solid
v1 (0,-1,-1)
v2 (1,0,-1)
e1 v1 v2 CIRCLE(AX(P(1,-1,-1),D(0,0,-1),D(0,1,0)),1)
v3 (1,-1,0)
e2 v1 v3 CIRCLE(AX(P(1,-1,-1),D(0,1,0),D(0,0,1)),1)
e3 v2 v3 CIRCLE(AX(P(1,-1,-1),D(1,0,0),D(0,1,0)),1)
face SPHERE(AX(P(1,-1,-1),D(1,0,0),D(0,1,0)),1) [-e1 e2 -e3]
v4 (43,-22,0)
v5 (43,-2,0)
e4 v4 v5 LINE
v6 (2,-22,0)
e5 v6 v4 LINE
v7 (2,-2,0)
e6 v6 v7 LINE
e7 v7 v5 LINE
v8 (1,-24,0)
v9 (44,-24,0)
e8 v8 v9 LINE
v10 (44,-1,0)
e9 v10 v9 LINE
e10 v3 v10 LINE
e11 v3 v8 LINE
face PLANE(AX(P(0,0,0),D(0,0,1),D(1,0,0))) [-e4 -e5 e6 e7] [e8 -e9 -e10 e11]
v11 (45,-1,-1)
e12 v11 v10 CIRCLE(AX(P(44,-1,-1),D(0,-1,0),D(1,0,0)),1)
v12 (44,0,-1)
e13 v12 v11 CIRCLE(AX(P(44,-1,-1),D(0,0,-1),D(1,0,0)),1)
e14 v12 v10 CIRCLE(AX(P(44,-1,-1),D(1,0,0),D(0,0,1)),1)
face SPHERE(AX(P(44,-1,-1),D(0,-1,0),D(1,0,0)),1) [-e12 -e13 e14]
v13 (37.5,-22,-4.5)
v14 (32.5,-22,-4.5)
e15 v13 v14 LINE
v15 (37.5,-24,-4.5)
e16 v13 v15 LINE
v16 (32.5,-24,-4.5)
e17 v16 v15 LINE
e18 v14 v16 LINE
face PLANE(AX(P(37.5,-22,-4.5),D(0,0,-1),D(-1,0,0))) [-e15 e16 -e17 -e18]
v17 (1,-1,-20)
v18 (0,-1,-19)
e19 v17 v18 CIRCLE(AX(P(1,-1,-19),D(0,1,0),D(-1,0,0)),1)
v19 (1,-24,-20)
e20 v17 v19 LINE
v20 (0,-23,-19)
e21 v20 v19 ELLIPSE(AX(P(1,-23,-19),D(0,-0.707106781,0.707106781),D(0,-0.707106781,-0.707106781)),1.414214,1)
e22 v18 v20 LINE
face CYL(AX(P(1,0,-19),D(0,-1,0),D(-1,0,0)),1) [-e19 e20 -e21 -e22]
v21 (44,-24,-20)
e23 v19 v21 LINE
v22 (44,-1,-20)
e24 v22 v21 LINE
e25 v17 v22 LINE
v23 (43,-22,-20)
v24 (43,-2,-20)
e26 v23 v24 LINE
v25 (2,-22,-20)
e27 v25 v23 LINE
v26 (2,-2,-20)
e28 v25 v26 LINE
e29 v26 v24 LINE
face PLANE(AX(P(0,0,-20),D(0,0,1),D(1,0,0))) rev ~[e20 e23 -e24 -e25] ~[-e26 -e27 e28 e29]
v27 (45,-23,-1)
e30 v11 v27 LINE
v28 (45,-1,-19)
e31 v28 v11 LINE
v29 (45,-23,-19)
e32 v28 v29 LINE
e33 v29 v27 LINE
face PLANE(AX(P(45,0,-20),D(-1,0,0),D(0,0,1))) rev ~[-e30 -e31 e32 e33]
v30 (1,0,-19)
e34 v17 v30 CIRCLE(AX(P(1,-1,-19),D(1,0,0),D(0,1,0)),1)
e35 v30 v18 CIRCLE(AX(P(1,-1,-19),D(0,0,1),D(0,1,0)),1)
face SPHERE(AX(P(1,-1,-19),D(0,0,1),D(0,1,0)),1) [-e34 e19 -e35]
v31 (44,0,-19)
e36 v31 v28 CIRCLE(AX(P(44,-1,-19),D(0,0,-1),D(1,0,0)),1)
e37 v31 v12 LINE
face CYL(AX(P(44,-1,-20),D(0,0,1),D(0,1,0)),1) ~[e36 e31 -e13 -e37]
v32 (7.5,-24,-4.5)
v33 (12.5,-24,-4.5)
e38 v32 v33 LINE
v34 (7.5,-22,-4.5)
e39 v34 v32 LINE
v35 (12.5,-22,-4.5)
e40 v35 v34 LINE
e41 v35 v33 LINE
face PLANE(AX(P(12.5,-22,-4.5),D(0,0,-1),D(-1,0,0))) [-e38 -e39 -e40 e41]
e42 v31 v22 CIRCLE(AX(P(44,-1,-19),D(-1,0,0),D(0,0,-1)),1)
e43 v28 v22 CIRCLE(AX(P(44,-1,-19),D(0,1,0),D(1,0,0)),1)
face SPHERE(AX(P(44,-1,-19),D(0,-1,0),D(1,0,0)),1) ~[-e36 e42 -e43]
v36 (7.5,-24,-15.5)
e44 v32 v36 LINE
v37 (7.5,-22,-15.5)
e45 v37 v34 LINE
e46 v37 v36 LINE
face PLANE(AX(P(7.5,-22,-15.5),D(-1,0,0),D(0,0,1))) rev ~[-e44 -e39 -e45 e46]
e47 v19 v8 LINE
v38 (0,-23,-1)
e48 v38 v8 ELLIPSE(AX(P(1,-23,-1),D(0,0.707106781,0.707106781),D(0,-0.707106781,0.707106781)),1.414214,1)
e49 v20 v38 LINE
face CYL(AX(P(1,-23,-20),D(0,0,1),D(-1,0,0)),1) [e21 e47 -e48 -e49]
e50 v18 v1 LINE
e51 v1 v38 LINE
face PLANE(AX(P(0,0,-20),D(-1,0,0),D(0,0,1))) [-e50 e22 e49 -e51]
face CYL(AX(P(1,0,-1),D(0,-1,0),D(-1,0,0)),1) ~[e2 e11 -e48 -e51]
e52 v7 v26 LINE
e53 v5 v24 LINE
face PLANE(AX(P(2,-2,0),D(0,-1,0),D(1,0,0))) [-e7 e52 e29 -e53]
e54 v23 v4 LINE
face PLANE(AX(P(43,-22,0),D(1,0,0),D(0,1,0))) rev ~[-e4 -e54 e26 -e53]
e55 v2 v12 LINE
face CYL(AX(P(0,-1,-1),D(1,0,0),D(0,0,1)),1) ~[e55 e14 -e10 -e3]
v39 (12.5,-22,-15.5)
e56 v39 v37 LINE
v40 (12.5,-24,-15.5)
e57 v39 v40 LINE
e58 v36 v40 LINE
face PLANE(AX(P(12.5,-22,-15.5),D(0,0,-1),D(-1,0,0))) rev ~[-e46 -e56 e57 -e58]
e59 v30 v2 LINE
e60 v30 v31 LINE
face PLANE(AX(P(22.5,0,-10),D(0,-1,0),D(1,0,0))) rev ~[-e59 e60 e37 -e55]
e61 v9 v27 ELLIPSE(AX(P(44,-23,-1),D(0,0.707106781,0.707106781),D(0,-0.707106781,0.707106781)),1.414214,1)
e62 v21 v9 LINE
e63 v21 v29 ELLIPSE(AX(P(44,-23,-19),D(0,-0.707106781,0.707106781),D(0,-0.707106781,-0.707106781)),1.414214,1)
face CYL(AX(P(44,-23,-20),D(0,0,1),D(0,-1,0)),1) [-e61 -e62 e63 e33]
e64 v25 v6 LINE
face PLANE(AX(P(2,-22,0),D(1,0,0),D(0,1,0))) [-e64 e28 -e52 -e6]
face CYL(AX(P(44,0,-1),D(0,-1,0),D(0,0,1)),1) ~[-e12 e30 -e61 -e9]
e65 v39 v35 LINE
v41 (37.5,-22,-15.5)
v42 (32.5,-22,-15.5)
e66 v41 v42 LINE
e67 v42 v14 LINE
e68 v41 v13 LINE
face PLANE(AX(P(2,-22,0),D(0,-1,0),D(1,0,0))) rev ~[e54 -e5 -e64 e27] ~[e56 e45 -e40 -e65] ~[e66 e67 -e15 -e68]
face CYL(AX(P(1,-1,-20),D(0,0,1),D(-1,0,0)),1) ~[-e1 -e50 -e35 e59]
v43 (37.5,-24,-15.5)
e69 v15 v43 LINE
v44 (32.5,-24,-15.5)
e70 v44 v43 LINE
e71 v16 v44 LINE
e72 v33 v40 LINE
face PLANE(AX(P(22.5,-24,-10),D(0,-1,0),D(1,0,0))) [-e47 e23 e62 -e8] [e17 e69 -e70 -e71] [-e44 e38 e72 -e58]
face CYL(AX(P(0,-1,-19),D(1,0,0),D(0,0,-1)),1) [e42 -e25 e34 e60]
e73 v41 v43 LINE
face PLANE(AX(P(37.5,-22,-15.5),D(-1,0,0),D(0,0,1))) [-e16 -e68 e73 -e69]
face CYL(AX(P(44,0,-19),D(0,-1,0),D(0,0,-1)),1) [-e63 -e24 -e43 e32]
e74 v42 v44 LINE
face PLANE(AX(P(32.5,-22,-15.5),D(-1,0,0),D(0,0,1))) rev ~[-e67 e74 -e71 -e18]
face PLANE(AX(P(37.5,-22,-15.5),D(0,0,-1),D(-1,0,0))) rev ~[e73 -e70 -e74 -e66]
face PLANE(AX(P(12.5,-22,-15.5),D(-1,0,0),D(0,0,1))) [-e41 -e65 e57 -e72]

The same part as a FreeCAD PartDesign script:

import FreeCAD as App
import Part
import Sketcher
from FreeCAD import Vector


def edges_at(feature, points):
    """Names of the edges that pass closest to the given points."""
    edges = feature.Shape.Edges
    near = lambda p: min(range(len(edges)), key=lambda i: edges[i].distToShape(Part.Vertex(*p))[0])
    return sorted({f"Edge{near(p) + 1}" for p in points})

doc = App.newDocument("Part")
params = doc.addObject("Spreadsheet::Sheet", "Params")
for row, (alias, value) in enumerate([
    ("sketch1_width", "45 mm"),
    ("sketch1_height", "20 mm"),
    ("pad1_length", "24 mm"),
    ("sketch2_width", "41 mm"),
    ("sketch2_height", "20 mm"),
    ("pocket1_length", "40 mm"),
    ("sketch3_width", "5 mm"),
    ("sketch3_height", "11 mm"),
    ("pocket2_length", "5 mm"),
    ("fillet_radius", "1 mm"),
], start=1):
    params.set(f"A{row}", alias)
    params.set(f"B{row}", "=" + value)
    params.setAlias(f"B{row}", alias)

body = doc.addObject("PartDesign::Body", "Body")

# Sketch on XZ plane
sketch1 = body.newObject("Sketcher::SketchObject", "Sketch")
sketch1.AttachmentSupport = (doc.getObject("XZ_Plane"), [""])
sketch1.MapMode = "FlatFace"
sketch1.addGeometry([
    Part.LineSegment(Vector(0, 0, 0), Vector(0, -20, 0)),
    Part.LineSegment(Vector(0, -20, 0), Vector(45, -20, 0)),
    Part.LineSegment(Vector(45, -20, 0), Vector(45, 0, 0)),
    Part.LineSegment(Vector(45, 0, 0), Vector(0, 0, 0)),
], False)
sketch1.addConstraint([
    Sketcher.Constraint("Coincident", 0, 2, 1, 1),
    Sketcher.Constraint("Coincident", 1, 2, 2, 1),
    Sketcher.Constraint("Coincident", 2, 2, 3, 1),
    Sketcher.Constraint("Coincident", 3, 2, 0, 1),
    Sketcher.Constraint("Vertical", 0),
    Sketcher.Constraint("Horizontal", 1),
    Sketcher.Constraint("Vertical", 2),
    Sketcher.Constraint("Horizontal", 3),
    Sketcher.Constraint("Coincident", 3, 2, -1, 1),
    Sketcher.Constraint("DistanceX", 1, 1, 1, 2, 45.0),
    Sketcher.Constraint("DistanceY", 0, 2, 0, 1, 20.0),
])
sketch1.setExpression("Constraints[9]", "Params.sketch1_width")
sketch1.setExpression("Constraints[10]", "Params.sketch1_height")
pad1 = body.newObject("PartDesign::Pad", "Pad")
pad1.Profile = sketch1
pad1.setExpression("Length", "Params.pad1_length")

# Sketch on XY plane
sketch2 = body.newObject("Sketcher::SketchObject", "Sketch001")
sketch2.AttachmentSupport = (doc.getObject("XY_Plane"), [""])
sketch2.MapMode = "FlatFace"
sketch2.addGeometry([
    Part.LineSegment(Vector(2, -2, 0), Vector(2, -22, 0)),
    Part.LineSegment(Vector(2, -22, 0), Vector(43, -22, 0)),
    Part.LineSegment(Vector(43, -22, 0), Vector(43, -2, 0)),
    Part.LineSegment(Vector(43, -2, 0), Vector(2, -2, 0)),
], False)
sketch2.addConstraint([
    Sketcher.Constraint("Coincident", 0, 2, 1, 1),
    Sketcher.Constraint("Coincident", 1, 2, 2, 1),
    Sketcher.Constraint("Coincident", 2, 2, 3, 1),
    Sketcher.Constraint("Coincident", 3, 2, 0, 1),
    Sketcher.Constraint("Vertical", 0),
    Sketcher.Constraint("Horizontal", 1),
    Sketcher.Constraint("Vertical", 2),
    Sketcher.Constraint("Horizontal", 3),
    Sketcher.Constraint("DistanceX", 1, 1, 1, 2, 41.0),
    Sketcher.Constraint("DistanceY", 0, 2, 0, 1, 20.0),
    Sketcher.Constraint("DistanceX", -1, 1, 0, 2, 2.0),
    Sketcher.Constraint("DistanceY", 0, 2, -1, 1, 22.0),
])
sketch2.setExpression("Constraints[8]", "Params.sketch2_width")
sketch2.setExpression("Constraints[9]", "Params.sketch2_height")
pocket1 = body.newObject("PartDesign::Pocket", "Pocket")
pocket1.Profile = sketch2
pocket1.setExpression("Length", "Params.pocket1_length")
pocket1.Midplane = True

# Sketch on XZ plane
sketch3 = body.newObject("Sketcher::SketchObject", "Sketch002")
sketch3.AttachmentSupport = (doc.getObject("XZ_Plane"), [""])
sketch3.MapMode = "FlatFace"
sketch3.AttachmentOffset = App.Placement(Vector(0, 0, 22), App.Rotation())
sketch3.addGeometry([
    Part.LineSegment(Vector(12.5, -4.5, 0), Vector(12.5, -15.5, 0)),  # 0
    Part.LineSegment(Vector(12.5, -15.5, 0), Vector(7.5, -15.5, 0)),  # 1
    Part.LineSegment(Vector(7.5, -15.5, 0), Vector(7.5, -4.5, 0)),  # 2
    Part.LineSegment(Vector(7.5, -4.5, 0), Vector(12.5, -4.5, 0)),  # 3
    Part.LineSegment(Vector(37.5, -4.5, 0), Vector(37.5, -15.5, 0)),  # 4
    Part.LineSegment(Vector(37.5, -15.5, 0), Vector(32.5, -15.5, 0)),  # 5
    Part.LineSegment(Vector(32.5, -15.5, 0), Vector(32.5, -4.5, 0)),  # 6
    Part.LineSegment(Vector(32.5, -4.5, 0), Vector(37.5, -4.5, 0)),  # 7
], False)
sketch3.addConstraint([
    Sketcher.Constraint("Coincident", 0, 2, 1, 1),
    Sketcher.Constraint("Coincident", 1, 2, 2, 1),
    Sketcher.Constraint("Coincident", 2, 2, 3, 1),
    Sketcher.Constraint("Coincident", 3, 2, 0, 1),
    Sketcher.Constraint("Coincident", 4, 2, 5, 1),
    Sketcher.Constraint("Coincident", 5, 2, 6, 1),
    Sketcher.Constraint("Coincident", 6, 2, 7, 1),
    Sketcher.Constraint("Coincident", 7, 2, 4, 1),
    Sketcher.Constraint("Vertical", 0),
    Sketcher.Constraint("Horizontal", 1),
    Sketcher.Constraint("Vertical", 2),
    Sketcher.Constraint("Horizontal", 3),
    Sketcher.Constraint("Vertical", 4),
    Sketcher.Constraint("Horizontal", 5),
    Sketcher.Constraint("Vertical", 6),
    Sketcher.Constraint("Horizontal", 7),
    Sketcher.Constraint("Horizontal", 1, 2, 4, 2),
    Sketcher.Constraint("Horizontal", 3, 2, 6, 2),
    Sketcher.Constraint("Equal", 3, 5),
    Sketcher.Constraint("DistanceX", 1, 2, 1, 1, 5.0),
    Sketcher.Constraint("DistanceY", 0, 2, 0, 1, 11.0),
    Sketcher.Constraint("DistanceX", 0, 2, 4, 2, 25.0),
    Sketcher.Constraint("DistanceX", -1, 1, 0, 2, 12.5),
    Sketcher.Constraint("DistanceY", 0, 2, -1, 1, 15.5),
])
sketch3.setExpression("Constraints[19]", "Params.sketch3_width")
sketch3.setExpression("Constraints[20]", "Params.sketch3_height")
pocket2 = body.newObject("PartDesign::Pocket", "Pocket001")
pocket2.Profile = sketch3
pocket2.setExpression("Length", "Params.pocket2_length")
pocket2.Reversed = True
doc.recompute()

fillet = body.newObject("PartDesign::Fillet", "Fillet")
fillet.Base = (pocket2, edges_at(pocket2, [
    (45, -12, -20),
    (45, -12, 0),
    (45, 0, -10),
    (45, -24, -10),
    (22.5, 0, 0),
    (0, 0, -10),
    (22.5, 0, -20),
    (0, -12, 0),
    (0, -12, -20),
    (0, -24, -10),
]))
fillet.setExpression("Radius", "Params.fillet_radius")

doc.recompute()
